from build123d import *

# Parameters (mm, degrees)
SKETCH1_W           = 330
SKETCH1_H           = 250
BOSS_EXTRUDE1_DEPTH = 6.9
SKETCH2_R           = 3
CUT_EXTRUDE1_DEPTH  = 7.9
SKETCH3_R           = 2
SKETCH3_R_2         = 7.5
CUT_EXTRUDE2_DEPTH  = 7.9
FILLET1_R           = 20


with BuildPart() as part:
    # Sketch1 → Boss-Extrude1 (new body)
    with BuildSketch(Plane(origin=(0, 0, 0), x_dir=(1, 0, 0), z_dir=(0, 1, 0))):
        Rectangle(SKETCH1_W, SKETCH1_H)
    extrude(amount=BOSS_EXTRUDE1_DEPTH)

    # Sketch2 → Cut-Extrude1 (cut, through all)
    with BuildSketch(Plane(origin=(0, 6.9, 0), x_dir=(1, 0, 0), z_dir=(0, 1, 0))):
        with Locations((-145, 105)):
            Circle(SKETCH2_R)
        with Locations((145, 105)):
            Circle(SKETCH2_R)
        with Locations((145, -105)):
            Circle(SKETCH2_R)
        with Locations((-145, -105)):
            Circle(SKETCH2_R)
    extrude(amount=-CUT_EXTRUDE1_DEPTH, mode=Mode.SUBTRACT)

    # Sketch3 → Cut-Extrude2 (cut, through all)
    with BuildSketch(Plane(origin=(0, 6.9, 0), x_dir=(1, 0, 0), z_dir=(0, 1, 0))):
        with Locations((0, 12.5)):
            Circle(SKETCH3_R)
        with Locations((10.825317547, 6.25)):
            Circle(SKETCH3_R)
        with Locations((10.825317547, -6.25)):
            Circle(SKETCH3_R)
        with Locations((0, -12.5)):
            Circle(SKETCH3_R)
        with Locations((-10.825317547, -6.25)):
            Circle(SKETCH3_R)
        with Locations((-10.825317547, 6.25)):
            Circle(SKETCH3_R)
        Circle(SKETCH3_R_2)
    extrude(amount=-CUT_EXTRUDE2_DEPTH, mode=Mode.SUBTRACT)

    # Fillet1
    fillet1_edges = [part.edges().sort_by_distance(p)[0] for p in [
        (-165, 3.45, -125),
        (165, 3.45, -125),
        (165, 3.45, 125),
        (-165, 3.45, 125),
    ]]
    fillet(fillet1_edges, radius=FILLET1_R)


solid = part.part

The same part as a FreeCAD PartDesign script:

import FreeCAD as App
import Part
import Sketcher
Q = App.Units.Quantity


def edges_at(feature, points):
    """Names of the edges that pass closest to the given points."""
    edges = feature.Shape.Edges
    near = lambda p: min(range(len(edges)), key=lambda i: edges[i].distToShape(Part.Vertex(*p))[0])
    return sorted({f"Edge{near(p) + 1}" for p in points})

doc = App.newDocument("Part")
body = doc.addObject("PartDesign::Body", "Body")

sketch1 = doc.addObject("Sketcher::SketchObject", "Sketch")
body.addObject(sketch1)
sketch1.AttachmentSupport = (doc.XZ_Plane, [""])
sketch1.MapMode = "FlatFace"
sketch1.addGeometry([
    Part.LineSegment(App.Vector(-165, -125, 0), App.Vector(-165, 125, 0)),
    Part.LineSegment(App.Vector(-165, 125, 0), App.Vector(165, 125, 0)),
    Part.LineSegment(App.Vector(165, 125, 0), App.Vector(165, -125, 0)),
    Part.LineSegment(App.Vector(165, -125, 0), App.Vector(-165, -125, 0)),
], False)
sketch1.addConstraint([
    Sketcher.Constraint("Coincident", 0, 2, 1, 1),
    Sketcher.Constraint("Coincident", 1, 2, 2, 1),
    Sketcher.Constraint("Coincident", 2, 2, 3, 1),
    Sketcher.Constraint("Coincident", 3, 2, 0, 1),
    Sketcher.Constraint("Vertical", 0),
    Sketcher.Constraint("Horizontal", 1),
    Sketcher.Constraint("Vertical", 2),
    Sketcher.Constraint("Horizontal", 3),
    Sketcher.Constraint("Symmetric", 0, 2, 2, 2, -1, 1),
    Sketcher.Constraint("DistanceX", 1, 1, 1, 2, Q("330 mm")),
    Sketcher.Constraint("DistanceY", 0, 1, 0, 2, Q("250 mm")),
])
pad1 = doc.addObject("PartDesign::Pad", "Pad")
body.addObject(pad1)
pad1.Profile = sketch1
pad1.Length = 6.9
pad1.Reversed = True

sketch2 = doc.addObject("Sketcher::SketchObject", "Sketch001")
body.addObject(sketch2)
sketch2.AttachmentSupport = (doc.XZ_Plane, [""])
sketch2.MapMode = "FlatFace"
sketch2.AttachmentOffset = App.Placement(App.Vector(0, 0, -6.9), App.Rotation())
sketch2.addGeometry([
    Part.Circle(App.Vector(-145, -105, 0), App.Vector(0, 0, 1), 3),
    Part.Circle(App.Vector(145, -105, 0), App.Vector(0, 0, 1), 3),
    Part.Circle(App.Vector(145, 105, 0), App.Vector(0, 0, 1), 3),
    Part.Circle(App.Vector(-145, 105, 0), App.Vector(0, 0, 1), 3),
], False)
sketch2.addConstraint([
    Sketcher.Constraint("Equal", 0, 1),
    Sketcher.Constraint("Equal", 1, 2),
    Sketcher.Constraint("Equal", 2, 3),
    Sketcher.Constraint("Symmetric", 0, 3, 2, 3, -1, 1),
    Sketcher.Constraint("Symmetric", 1, 3, 3, 3, -1, 1),
    Sketcher.Constraint("Symmetric", 0, 3, 1, 3, -2),
    Sketcher.Constraint("Diameter", 0, Q("6 mm")),
    Sketcher.Constraint("DistanceX", 0, 3, -1, 1, Q("145 mm")),
    Sketcher.Constraint("DistanceY", 0, 3, -1, 1, Q("105 mm")),
])
pocket1 = doc.addObject("PartDesign::Pocket", "Pocket")
body.addObject(pocket1)
pocket1.Profile = sketch2
pocket1.Type = "ThroughAll"
pocket1.Reversed = True

sketch3 = doc.addObject("Sketcher::SketchObject", "Sketch002")
body.addObject(sketch3)
sketch3.AttachmentSupport = (doc.XZ_Plane, [""])
sketch3.MapMode = "FlatFace"
sketch3.AttachmentOffset = App.Placement(App.Vector(0, 0, -6.9), App.Rotation())
sketch3.addGeometry([
    Part.Circle(App.Vector(0, -12.5, 0), App.Vector(0, 0, 1), 2),
    Part.Circle(App.Vector(10.8, -6.2, 0), App.Vector(0, 0, 1), 2),
    Part.Circle(App.Vector(10.8, 6.2, 0), App.Vector(0, 0, 1), 2),
    Part.Circle(App.Vector(0, 12.5, 0), App.Vector(0, 0, 1), 2),
    Part.Circle(App.Vector(-10.8, 6.2, 0), App.Vector(0, 0, 1), 2),
    Part.Circle(App.Vector(-10.8, -6.2, 0), App.Vector(0, 0, 1), 2),
    Part.Circle(App.Vector(0, 0, 0), App.Vector(0, 0, 1), 7.5),
], False)
sketch3.addConstraint([
    Sketcher.Constraint("Coincident", 6, 3, -1, 1),
    Sketcher.Constraint("Equal", 0, 1),
    Sketcher.Constraint("Equal", 1, 2),
    Sketcher.Constraint("Equal", 2, 3),
    Sketcher.Constraint("Equal", 3, 4),
    Sketcher.Constraint("Equal", 4, 5),
    Sketcher.Constraint("Symmetric", 0, 3, 3, 3, -1, 1),
    Sketcher.Constraint("Symmetric", 1, 3, 4, 3, -1, 1),
    Sketcher.Constraint("Symmetric", 2, 3, 5, 3, -1, 1),
    Sketcher.Constraint("Symmetric", 2, 3, 4, 3, -2),
    Sketcher.Constraint("PointOnObject", 0, 3, -2),
    Sketcher.Constraint("Diameter", 0, Q("4 mm")),
    Sketcher.Constraint("Diameter", 6, Q("15 mm")),
    Sketcher.Constraint("DistanceY", 0, 3, 3, 3, Q("25 mm")),
    Sketcher.Constraint("DistanceY", 1, 3, 2, 3, Q("12.5 mm")),
    Sketcher.Constraint("DistanceX", -1, 1, 1, 3, Q("10.825318 mm")),
])
pocket2 = doc.addObject("PartDesign::Pocket", "Pocket001")
body.addObject(pocket2)
pocket2.Profile = sketch3
pocket2.Type = "ThroughAll"
pocket2.Reversed = True
doc.recompute()

fillet = doc.addObject("PartDesign::Fillet", "Fillet")
body.addObject(fillet)
fillet.Base = (pocket2, edges_at(pocket2, [
    (-165, 3.45, -125),
    (165, 3.45, -125),
    (165, 3.45, 125),
    (-165, 3.45, 125),
]))
fillet.Radius = 20

doc.recompute()
